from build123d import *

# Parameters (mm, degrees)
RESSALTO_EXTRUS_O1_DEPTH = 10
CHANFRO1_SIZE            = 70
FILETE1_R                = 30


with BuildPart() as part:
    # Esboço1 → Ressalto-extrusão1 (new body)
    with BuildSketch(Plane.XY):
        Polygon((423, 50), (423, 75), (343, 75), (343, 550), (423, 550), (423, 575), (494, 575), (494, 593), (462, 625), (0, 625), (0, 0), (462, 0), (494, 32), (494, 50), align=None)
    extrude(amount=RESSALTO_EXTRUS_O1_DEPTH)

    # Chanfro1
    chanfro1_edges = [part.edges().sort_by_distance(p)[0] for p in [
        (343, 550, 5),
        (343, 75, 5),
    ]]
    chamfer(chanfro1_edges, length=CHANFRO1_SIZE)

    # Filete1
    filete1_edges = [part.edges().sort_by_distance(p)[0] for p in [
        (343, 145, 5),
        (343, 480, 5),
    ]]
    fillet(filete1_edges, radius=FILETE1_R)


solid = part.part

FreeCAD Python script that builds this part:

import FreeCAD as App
import Part
import Sketcher
from FreeCAD import Vector
Q = App.Units.Quantity


def edges_at(feature, points):
    """Names of the edges that pass closest to the given points."""
    edges = feature.Shape.Edges
    near = lambda p: min(range(len(edges)), key=lambda i: edges[i].distToShape(Part.Vertex(*p))[0])
    return sorted({f"Edge{near(p) + 1}" for p in points})


def add_polygon(sketch, points):
    """Adds a closed chain of lines whose ends are joined by coincident constraints."""
    first, n = sketch.GeometryCount, len(points)
    for a, b in zip(points, points[1:] + points[:1]):
        sketch.addGeometry(Part.LineSegment(App.Vector(*a, 0), App.Vector(*b, 0)), False)
    for i in range(n):
        sketch.addConstraint(Sketcher.Constraint("Coincident", first + i, 2, first + (i + 1) % n, 1))

doc = App.newDocument("Part")
body = doc.addObject("PartDesign::Body", "Body")

# Sketch on XY plane
sketch1 = body.newObject("Sketcher::SketchObject", "Sketch")
sketch1.AttachmentSupport = (doc.getObject("XY_Plane"), [""])
sketch1.MapMode = "FlatFace"
add_polygon(sketch1, [(423, 50), (423, 75), (343, 75), (343, 550), (423, 550), (423, 575), (494, 575), (494, 593), (462, 625), (0, 625), (0, 0), (462, 0), (494, 32), (494, 50)])  # lines 0-13
sketch1.addConstraint([
    Sketcher.Constraint("Vertical", 0),
    Sketcher.Constraint("Horizontal", 1),
    Sketcher.Constraint("Vertical", 2),
    Sketcher.Constraint("Horizontal", 3),
    Sketcher.Constraint("Vertical", 4),
    Sketcher.Constraint("Horizontal", 5),
    Sketcher.Constraint("Vertical", 6),
    Sketcher.Constraint("Horizontal", 8),
    Sketcher.Constraint("Vertical", 9),
    Sketcher.Constraint("Horizontal", 10),
    Sketcher.Constraint("Vertical", 12),
    Sketcher.Constraint("Horizontal", 13),
    Sketcher.Constraint("Coincident", 9, 2, -1, 1),
    Sketcher.Constraint("Perpendicular", 7, 11),
    Sketcher.Constraint("Vertical", 0, 2, 3, 2),
    Sketcher.Constraint("Vertical", 7, 2, 10, 2),
    Sketcher.Constraint("Vertical", 6, 2, 11, 2),
    Sketcher.Constraint("Equal", 0, 4),
    Sketcher.Constraint("Equal", 6, 12),
    Sketcher.Constraint("Equal", 7, 11),
    Sketcher.Constraint("DistanceX", 1, 2, 1, 1, Q("80 mm")),
    Sketcher.Constraint("DistanceX", 5, 1, 5, 2, Q("71 mm")),
    Sketcher.Constraint("DistanceX", 8, 2, 8, 1, Q("462 mm")),
    Sketcher.Constraint("DistanceY", 0, 1, 0, 2, Q("25 mm")),
    Sketcher.Constraint("DistanceY", 2, 1, 2, 2, Q("475 mm")),
    Sketcher.Constraint("DistanceY", 6, 1, 6, 2, Q("18 mm")),
    Sketcher.Constraint("DistanceY", 9, 2, 9, 1, Q("625 mm")),
])
pad1 = body.newObject("PartDesign::Pad", "Pad")
pad1.Profile = sketch1
pad1.Length = 10
doc.recompute()

chamfer = body.newObject("PartDesign::Chamfer", "Chamfer")
chamfer.Base = (pad1, edges_at(pad1, [(343, 550, 5), (343, 75, 5)]))
chamfer.Size = 70
doc.recompute()

fillet = body.newObject("PartDesign::Fillet", "Fillet")
fillet.Base = (chamfer, edges_at(chamfer, [(343, 145, 5), (343, 480, 5)]))
fillet.Radius = 30

doc.recompute()
